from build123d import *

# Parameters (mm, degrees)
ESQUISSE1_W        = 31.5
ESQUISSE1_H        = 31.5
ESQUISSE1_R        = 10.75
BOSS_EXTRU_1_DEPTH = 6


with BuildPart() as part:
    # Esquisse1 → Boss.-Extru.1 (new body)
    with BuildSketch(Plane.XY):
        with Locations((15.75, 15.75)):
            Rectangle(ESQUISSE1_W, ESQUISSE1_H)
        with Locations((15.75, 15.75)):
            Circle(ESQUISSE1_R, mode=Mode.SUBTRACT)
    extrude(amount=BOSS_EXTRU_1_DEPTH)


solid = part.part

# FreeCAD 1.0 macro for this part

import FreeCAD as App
import Part
import Sketcher
Q = App.Units.Quantity


def add_polygon(sketch, points):
    """Adds a closed chain of lines whose ends are joined by coincident constraints."""
    first, n = sketch.GeometryCount, len(points)
    for a, b in zip(points, points[1:] + points[:1]):
        sketch.addGeometry(Part.LineSegment(App.Vector(*a, 0), App.Vector(*b, 0)), False)
    for i in range(n):
        sketch.addConstraint(Sketcher.Constraint("Coincident", first + i, 2, first + (i + 1) % n, 1))

doc = App.newDocument("Part")
body = doc.addObject("PartDesign::Body", "Body")

# Sketch on XY plane
sketch1 = doc.addObject("Sketcher::SketchObject", "Sketch")
body.addObject(sketch1)
sketch1.AttachmentSupport = (doc.XY_Plane, [""])
sketch1.MapMode = "FlatFace"
add_polygon(sketch1, [(0, 32), (0, 0), (32, 0), (32, 32)])  # lines 0-3
sketch1.addGeometry(Part.Circle(App.Vector(16, 16, 0), App.Vector(0, 0, 1), 11), False)  # 4
sketch1.addConstraint([
    Sketcher.Constraint("Vertical", 0),
    Sketcher.Constraint("Horizontal", 1),
    Sketcher.Constraint("Vertical", 2),
    Sketcher.Constraint("Horizontal", 3),
    Sketcher.Constraint("Coincident", 0, 2, -1, 1),
    Sketcher.Constraint("Equal", 3, 0),
    Sketcher.Constraint("Diameter", 4, Q("21.5 mm")),
    Sketcher.Constraint("DistanceX", 1, 1, 1, 2, Q("31.5 mm")),
    Sketcher.Constraint("DistanceX", -1, 1, 4, 3, Q("15.75 mm")),
    Sketcher.Constraint("DistanceY", -1, 1, 4, 3, Q("15.75 mm")),
])
pad1 = doc.addObject("PartDesign::Pad", "Pad")
body.addObject(pad1)
pad1.Profile = sketch1
pad1.Length = 6

doc.recompute()
